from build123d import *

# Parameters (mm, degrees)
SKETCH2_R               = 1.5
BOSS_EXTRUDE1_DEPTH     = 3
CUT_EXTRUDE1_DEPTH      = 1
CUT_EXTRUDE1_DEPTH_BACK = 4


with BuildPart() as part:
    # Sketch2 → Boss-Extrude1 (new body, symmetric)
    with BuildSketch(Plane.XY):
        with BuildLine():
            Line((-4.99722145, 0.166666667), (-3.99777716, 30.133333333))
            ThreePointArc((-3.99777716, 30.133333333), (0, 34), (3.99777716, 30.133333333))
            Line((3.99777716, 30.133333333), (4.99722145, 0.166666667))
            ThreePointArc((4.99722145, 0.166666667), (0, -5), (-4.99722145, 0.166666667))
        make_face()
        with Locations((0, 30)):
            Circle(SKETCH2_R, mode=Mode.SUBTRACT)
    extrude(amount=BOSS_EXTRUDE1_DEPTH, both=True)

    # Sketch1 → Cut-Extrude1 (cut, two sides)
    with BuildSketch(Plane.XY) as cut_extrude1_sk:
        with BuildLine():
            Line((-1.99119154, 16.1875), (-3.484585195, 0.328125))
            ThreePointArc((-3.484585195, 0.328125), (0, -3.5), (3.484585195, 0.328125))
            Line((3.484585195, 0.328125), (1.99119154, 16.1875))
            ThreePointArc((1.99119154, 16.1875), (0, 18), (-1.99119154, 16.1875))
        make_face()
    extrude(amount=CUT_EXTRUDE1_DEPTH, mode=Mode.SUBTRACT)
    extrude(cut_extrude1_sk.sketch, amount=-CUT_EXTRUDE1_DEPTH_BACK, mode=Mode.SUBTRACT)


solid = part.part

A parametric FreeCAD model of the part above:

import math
import FreeCAD as App
import Part
import Sketcher
from FreeCAD import Vector
Q = App.Units.Quantity

doc = App.newDocument("Part")
body = doc.addObject("PartDesign::Body", "Body")

# Sketch on XY plane
sketch1 = body.newObject("Sketcher::SketchObject", "Sketch")
sketch1.AttachmentSupport = (doc.getObject("XY_Plane"), [""])
sketch1.MapMode = "FlatFace"
sketch1.addGeometry(Part.LineSegment(Vector(-4, 30.1, 0), Vector(-5, 0.2, 0)), False)
sketch1.addGeometry(Part.ArcOfCircle(Part.Circle(Vector(0, 0, 0), Vector(0, 0, 1), 5), math.radians(178), math.radians(362)), False)
sketch1.addGeometry(Part.LineSegment(Vector(5, 0.2, 0), Vector(4, 30.1, 0)), False)
sketch1.addGeometry(Part.ArcOfCircle(Part.Circle(Vector(0, 30, 0), Vector(0, 0, 1), 4), math.radians(2), math.radians(178)), False)
sketch1.addGeometry(Part.Circle(Vector(0, 30, 0), Vector(0, 0, 1), 1.5), False)
sketch1.addConstraint(Sketcher.Constraint("Tangent", 0, 2, 1, 1))
sketch1.addConstraint(Sketcher.Constraint("Tangent", 1, 2, 2, 1))
sketch1.addConstraint(Sketcher.Constraint("Tangent", 2, 2, 3, 1))
sketch1.addConstraint(Sketcher.Constraint("Tangent", 3, 2, 0, 1))
sketch1.addConstraint(Sketcher.Constraint("Coincident", 1, 3, -1, 1))
sketch1.addConstraint(Sketcher.Constraint("Coincident", 4, 3, 3, 3))
sketch1.addConstraint(Sketcher.Constraint("PointOnObject", 3, 3, -2))
sketch1.addConstraint(Sketcher.Constraint("Diameter", 4, Q("3 mm")))
sketch1.addConstraint(Sketcher.Constraint("Radius", 1, Q("5 mm")))
sketch1.addConstraint(Sketcher.Constraint("Radius", 3, Q("4 mm")))
sketch1.addConstraint(Sketcher.Constraint("DistanceY", -1, 1, 3, 3, Q("30 mm")))
pad1 = body.newObject("PartDesign::Pad", "Pad")
pad1.Profile = sketch1
pad1.Length = 6
pad1.Midplane = True

# Sketch on XY plane
sketch2 = body.newObject("Sketcher::SketchObject", "Sketch001")
sketch2.AttachmentSupport = (doc.getObject("XY_Plane"), [""])
sketch2.MapMode = "FlatFace"
sketch2.addGeometry(Part.LineSegment(Vector(-2, 16.2, 0), Vector(-3.5, 0.3, 0)), False)
sketch2.addGeometry(Part.ArcOfCircle(Part.Circle(Vector(0, 0, 0), Vector(0, 0, 1), 3.5), math.radians(175), math.radians(365)), False)
sketch2.addGeometry(Part.LineSegment(Vector(3.5, 0.3, 0), Vector(2, 16.2, 0)), False)
sketch2.addGeometry(Part.ArcOfCircle(Part.Circle(Vector(0, 16, 0), Vector(0, 0, 1), 2), math.radians(5), math.radians(175)), False)
sketch2.addConstraint(Sketcher.Constraint("Tangent", 0, 2, 1, 1))
sketch2.addConstraint(Sketcher.Constraint("Tangent", 1, 2, 2, 1))
sketch2.addConstraint(Sketcher.Constraint("Tangent", 2, 2, 3, 1))
sketch2.addConstraint(Sketcher.Constraint("Tangent", 3, 2, 0, 1))
sketch2.addConstraint(Sketcher.Constraint("Coincident", 1, 3, -1, 1))
sketch2.addConstraint(Sketcher.Constraint("PointOnObject", 3, 3, -2))
sketch2.addConstraint(Sketcher.Constraint("Radius", 3, Q("2 mm")))
sketch2.addConstraint(Sketcher.Constraint("Radius", 1, Q("3.5 mm")))
sketch2.addConstraint(Sketcher.Constraint("DistanceY", -1, 1, 3, 3, Q("16 mm")))
pocket1 = body.newObject("PartDesign::Pocket", "Pocket")
pocket1.Profile = sketch2
pocket1.Type = "TwoLengths"
pocket1.Length = 1
pocket1.Length2 = 4
pocket1.Reversed = True

doc.recompute()
